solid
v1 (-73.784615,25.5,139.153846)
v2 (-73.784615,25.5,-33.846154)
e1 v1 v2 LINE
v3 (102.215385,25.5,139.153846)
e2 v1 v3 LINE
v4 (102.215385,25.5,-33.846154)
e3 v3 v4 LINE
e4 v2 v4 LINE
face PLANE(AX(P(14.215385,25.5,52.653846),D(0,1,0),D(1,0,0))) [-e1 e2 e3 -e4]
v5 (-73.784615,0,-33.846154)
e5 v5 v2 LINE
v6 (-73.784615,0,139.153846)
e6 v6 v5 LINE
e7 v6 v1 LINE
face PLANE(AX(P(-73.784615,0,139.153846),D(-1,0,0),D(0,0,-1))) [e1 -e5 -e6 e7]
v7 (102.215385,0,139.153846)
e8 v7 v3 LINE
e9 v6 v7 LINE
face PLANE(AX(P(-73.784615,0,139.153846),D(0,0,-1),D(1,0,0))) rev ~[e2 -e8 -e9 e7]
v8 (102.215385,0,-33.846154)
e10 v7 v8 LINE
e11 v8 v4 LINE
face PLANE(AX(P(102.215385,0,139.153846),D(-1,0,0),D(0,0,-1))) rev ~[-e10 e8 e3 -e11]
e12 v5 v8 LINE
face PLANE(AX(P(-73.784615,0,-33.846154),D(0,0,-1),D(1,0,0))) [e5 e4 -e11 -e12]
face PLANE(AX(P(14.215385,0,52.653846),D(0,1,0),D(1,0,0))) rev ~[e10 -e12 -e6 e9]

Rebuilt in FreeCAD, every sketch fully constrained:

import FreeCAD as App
import Part
import Sketcher

V = App.Vector
Q = App.Units.Quantity

doc = App.newDocument("Part")
body = doc.addObject("PartDesign::Body", "Body")

sketch1 = body.newObject("Sketcher::SketchObject", "Sketch")
sketch1.AttachmentSupport = (doc.getObject("XZ_Plane"), [""])
sketch1.MapMode = "FlatFace"
sketch1.addGeometry(Part.LineSegment(V(-74, -34, 0), V(-74, 139, 0)), False)
sketch1.addGeometry(Part.LineSegment(V(-74, 139, 0), V(102, 139, 0)), False)
sketch1.addGeometry(Part.LineSegment(V(102, 139, 0), V(102, -34, 0)), False)
sketch1.addGeometry(Part.LineSegment(V(102, -34, 0), V(-74, -34, 0)), False)
sketch1.addConstraint(Sketcher.Constraint("Coincident", 0, 2, 1, 1))
sketch1.addConstraint(Sketcher.Constraint("Coincident", 1, 2, 2, 1))
sketch1.addConstraint(Sketcher.Constraint("Coincident", 2, 2, 3, 1))
sketch1.addConstraint(Sketcher.Constraint("Coincident", 3, 2, 0, 1))
sketch1.addConstraint(Sketcher.Constraint("Vertical", 0))
sketch1.addConstraint(Sketcher.Constraint("Horizontal", 1))
sketch1.addConstraint(Sketcher.Constraint("Vertical", 2))
sketch1.addConstraint(Sketcher.Constraint("Horizontal", 3))
sketch1.addConstraint(Sketcher.Constraint("DistanceX", 1, 1, 1, 2, Q("176 mm")))
sketch1.addConstraint(Sketcher.Constraint("DistanceY", 0, 1, 0, 2, Q("173 mm")))
sketch1.addConstraint(Sketcher.Constraint("DistanceX", 0, 2, -1, 1, Q("73.784615 mm")))
sketch1.addConstraint(Sketcher.Constraint("DistanceY", -1, 1, 0, 2, Q("139.153846 mm")))
pad1 = body.newObject("PartDesign::Pad", "Pad")
pad1.Profile = sketch1
pad1.Length = 25.5
pad1.Reversed = True

doc.recompute()
